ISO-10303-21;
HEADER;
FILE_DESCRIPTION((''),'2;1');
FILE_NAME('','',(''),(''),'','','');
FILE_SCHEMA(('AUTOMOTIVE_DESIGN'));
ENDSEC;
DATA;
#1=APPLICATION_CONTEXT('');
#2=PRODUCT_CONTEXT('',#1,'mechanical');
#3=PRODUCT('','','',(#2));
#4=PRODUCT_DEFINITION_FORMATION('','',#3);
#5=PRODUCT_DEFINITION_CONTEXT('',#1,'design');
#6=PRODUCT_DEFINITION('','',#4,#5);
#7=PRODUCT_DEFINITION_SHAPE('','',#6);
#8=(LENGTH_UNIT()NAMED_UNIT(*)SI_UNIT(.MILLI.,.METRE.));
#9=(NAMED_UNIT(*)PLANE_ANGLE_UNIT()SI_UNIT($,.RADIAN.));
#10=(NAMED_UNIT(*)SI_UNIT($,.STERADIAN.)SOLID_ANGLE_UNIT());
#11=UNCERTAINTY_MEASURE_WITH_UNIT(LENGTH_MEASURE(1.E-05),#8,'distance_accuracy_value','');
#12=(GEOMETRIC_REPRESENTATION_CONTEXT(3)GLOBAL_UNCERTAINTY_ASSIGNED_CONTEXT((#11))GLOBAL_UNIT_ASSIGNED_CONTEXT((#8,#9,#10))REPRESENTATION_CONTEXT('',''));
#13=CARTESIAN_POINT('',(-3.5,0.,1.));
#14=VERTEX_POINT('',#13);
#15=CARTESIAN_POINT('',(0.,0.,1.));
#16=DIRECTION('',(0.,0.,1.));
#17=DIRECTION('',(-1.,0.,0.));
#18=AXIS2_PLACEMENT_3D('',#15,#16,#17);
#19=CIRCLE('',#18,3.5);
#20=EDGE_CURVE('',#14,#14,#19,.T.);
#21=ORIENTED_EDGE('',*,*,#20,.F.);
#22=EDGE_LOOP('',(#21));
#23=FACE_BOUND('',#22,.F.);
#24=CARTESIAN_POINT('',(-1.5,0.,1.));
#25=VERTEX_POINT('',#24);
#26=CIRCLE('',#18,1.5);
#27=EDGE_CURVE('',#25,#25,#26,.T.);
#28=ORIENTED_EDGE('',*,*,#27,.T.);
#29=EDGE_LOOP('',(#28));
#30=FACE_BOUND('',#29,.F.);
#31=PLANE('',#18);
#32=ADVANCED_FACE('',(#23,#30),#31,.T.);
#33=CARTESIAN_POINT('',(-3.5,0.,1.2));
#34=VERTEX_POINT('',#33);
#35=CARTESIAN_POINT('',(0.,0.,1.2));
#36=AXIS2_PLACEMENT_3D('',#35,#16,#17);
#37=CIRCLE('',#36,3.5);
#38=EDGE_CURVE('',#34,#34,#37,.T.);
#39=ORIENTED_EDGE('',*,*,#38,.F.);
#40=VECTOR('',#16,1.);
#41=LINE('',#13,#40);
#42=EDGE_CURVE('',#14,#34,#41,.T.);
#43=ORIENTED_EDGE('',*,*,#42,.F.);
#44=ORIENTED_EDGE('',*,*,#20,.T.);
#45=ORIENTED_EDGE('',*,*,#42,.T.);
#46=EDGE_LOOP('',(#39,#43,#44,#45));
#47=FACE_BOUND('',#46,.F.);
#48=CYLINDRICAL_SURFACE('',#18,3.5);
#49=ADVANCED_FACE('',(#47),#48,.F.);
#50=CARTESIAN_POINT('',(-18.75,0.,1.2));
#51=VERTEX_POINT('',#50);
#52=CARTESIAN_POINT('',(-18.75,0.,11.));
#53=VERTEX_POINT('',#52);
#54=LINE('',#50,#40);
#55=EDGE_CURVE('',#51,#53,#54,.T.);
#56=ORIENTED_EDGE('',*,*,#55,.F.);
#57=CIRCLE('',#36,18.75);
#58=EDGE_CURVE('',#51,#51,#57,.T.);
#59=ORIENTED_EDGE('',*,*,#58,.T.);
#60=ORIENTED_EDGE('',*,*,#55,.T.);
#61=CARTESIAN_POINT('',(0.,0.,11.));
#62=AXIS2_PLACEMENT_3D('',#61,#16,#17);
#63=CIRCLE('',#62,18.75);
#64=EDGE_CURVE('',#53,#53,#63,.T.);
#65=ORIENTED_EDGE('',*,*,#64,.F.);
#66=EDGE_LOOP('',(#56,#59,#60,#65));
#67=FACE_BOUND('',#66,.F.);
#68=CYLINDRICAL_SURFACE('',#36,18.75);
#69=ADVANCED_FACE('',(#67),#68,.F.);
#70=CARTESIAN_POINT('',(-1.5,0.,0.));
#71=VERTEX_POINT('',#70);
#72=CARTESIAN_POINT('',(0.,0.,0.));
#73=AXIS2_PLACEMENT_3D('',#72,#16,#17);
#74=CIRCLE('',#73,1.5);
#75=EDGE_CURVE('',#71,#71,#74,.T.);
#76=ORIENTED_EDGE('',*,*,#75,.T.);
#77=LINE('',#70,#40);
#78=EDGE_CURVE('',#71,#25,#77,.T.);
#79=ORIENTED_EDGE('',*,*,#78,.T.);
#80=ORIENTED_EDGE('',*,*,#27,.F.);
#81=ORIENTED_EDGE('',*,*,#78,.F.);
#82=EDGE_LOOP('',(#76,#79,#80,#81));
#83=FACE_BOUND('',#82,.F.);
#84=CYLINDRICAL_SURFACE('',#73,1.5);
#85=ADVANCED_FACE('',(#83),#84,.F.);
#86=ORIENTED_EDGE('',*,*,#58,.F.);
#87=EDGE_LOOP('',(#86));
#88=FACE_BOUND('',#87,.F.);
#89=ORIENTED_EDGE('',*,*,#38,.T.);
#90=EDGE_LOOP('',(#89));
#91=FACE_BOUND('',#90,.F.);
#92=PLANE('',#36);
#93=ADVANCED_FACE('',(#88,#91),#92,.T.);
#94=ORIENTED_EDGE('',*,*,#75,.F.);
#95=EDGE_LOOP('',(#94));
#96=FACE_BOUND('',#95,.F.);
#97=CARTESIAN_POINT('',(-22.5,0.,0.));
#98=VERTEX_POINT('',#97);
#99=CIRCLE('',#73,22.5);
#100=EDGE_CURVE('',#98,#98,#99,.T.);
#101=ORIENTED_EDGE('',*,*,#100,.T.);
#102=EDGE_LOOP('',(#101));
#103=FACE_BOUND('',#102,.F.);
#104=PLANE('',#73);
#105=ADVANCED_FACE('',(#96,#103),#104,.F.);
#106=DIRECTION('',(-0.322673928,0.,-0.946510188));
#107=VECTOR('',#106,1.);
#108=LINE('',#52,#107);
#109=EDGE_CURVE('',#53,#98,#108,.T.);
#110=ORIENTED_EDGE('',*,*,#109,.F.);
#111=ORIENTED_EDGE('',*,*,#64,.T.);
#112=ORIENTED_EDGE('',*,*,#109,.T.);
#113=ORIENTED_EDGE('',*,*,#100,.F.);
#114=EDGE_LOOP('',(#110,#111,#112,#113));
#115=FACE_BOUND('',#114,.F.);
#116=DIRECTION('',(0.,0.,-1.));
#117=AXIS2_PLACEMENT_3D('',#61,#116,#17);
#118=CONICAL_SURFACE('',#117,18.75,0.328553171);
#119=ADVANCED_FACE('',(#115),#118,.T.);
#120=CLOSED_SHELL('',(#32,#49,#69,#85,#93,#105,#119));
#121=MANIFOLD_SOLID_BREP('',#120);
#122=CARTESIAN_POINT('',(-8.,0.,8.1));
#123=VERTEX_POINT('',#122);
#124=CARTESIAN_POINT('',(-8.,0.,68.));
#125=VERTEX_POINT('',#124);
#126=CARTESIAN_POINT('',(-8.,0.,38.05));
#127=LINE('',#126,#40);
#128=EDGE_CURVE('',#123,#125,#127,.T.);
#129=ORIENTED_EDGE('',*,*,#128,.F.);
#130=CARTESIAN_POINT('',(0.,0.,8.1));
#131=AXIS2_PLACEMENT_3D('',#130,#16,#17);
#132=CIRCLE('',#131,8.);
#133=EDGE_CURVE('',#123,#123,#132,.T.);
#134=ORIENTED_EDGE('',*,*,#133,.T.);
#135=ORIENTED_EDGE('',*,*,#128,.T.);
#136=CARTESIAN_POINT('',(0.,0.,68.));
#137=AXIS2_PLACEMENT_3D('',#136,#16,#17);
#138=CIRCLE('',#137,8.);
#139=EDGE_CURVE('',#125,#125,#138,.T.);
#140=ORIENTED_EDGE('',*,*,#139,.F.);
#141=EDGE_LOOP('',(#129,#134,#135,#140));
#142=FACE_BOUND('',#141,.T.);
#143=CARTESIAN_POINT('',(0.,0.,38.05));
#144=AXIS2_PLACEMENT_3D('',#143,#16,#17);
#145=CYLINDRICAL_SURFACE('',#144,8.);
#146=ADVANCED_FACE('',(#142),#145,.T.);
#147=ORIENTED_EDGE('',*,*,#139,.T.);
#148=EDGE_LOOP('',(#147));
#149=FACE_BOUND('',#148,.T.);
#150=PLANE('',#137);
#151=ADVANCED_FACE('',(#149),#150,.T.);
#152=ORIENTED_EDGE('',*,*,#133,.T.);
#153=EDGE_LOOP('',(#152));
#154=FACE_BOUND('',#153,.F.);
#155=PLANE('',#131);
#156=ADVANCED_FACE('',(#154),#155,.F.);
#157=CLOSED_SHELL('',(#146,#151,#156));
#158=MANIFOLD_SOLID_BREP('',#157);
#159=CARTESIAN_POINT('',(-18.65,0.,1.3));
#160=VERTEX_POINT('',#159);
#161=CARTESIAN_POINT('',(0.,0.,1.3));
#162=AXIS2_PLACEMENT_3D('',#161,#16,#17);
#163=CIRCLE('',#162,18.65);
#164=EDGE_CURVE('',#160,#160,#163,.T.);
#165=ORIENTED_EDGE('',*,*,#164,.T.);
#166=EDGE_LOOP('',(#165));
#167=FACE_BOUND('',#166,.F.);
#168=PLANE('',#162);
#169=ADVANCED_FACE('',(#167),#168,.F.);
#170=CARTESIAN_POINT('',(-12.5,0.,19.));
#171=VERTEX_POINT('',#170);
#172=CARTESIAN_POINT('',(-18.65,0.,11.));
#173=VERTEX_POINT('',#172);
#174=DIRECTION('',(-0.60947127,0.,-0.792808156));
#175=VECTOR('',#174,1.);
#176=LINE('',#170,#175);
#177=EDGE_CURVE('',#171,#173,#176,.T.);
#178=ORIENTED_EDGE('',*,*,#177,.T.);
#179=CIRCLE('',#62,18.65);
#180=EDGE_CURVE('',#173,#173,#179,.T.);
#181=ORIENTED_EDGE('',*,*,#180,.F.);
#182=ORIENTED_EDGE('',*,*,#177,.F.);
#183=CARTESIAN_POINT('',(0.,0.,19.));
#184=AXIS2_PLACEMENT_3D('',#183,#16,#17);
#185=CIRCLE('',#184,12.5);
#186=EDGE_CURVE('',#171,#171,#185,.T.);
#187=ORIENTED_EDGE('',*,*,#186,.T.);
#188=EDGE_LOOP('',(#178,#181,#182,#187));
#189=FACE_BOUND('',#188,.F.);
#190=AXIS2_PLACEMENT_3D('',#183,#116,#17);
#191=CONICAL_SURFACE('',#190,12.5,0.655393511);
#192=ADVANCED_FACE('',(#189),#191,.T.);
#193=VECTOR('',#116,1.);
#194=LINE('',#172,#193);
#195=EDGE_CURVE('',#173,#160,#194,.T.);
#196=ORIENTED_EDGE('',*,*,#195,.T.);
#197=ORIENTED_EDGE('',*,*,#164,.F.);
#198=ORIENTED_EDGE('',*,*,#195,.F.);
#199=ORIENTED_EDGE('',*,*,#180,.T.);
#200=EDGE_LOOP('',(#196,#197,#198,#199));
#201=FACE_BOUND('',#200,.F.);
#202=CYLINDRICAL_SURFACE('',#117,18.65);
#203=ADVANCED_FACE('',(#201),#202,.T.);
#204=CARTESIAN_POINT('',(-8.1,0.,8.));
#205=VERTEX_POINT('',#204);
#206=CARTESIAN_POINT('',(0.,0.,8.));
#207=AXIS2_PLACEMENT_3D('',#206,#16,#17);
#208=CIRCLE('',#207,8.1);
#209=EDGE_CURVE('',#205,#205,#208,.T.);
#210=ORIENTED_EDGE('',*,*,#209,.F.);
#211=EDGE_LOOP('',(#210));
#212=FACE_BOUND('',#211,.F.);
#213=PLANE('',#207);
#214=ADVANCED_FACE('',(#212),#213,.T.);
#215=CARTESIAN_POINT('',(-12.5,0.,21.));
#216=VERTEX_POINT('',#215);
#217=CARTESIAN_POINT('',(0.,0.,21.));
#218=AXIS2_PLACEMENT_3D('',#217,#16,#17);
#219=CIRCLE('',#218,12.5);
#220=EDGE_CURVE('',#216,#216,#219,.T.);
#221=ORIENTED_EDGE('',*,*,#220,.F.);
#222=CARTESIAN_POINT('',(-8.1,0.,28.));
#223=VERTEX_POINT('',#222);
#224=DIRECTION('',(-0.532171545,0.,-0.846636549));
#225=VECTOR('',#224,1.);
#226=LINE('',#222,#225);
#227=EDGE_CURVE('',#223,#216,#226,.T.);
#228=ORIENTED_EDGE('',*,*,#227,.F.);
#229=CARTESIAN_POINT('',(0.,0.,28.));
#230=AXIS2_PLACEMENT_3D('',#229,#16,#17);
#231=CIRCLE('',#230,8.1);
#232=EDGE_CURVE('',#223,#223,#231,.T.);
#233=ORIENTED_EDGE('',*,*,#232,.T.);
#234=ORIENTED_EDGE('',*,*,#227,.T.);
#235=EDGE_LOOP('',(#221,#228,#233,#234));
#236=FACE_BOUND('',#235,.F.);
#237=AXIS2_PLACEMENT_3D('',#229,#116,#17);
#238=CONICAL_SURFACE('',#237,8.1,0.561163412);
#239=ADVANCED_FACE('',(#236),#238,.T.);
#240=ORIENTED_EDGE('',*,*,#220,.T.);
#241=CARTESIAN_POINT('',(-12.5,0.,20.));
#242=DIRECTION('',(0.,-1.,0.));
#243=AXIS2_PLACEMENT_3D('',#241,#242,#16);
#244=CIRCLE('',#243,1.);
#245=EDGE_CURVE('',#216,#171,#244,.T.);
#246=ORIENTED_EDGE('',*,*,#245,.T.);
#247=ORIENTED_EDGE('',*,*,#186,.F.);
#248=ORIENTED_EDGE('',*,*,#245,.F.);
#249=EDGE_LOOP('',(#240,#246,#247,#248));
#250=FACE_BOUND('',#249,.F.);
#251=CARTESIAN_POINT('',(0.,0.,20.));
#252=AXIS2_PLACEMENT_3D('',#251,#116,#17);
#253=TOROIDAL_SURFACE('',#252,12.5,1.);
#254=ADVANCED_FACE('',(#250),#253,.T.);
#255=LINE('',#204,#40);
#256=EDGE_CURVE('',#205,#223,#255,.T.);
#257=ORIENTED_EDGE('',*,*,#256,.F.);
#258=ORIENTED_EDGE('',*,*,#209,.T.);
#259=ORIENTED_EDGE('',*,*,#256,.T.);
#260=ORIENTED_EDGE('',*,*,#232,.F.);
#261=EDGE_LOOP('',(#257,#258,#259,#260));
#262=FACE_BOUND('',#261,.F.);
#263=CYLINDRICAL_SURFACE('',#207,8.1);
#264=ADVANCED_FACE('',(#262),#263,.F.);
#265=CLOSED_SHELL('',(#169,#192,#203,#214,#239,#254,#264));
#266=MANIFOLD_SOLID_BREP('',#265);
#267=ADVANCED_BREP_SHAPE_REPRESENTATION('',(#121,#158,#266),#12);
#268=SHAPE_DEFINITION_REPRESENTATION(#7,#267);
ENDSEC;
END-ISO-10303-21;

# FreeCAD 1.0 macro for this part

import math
import FreeCAD as App
import Part
import Sketcher
from FreeCAD import Vector
Q = App.Units.Quantity


def add_polygon(sketch, points):
    """Adds a closed chain of lines whose ends are joined by coincident constraints."""
    first, n = sketch.GeometryCount, len(points)
    for a, b in zip(points, points[1:] + points[:1]):
        sketch.addGeometry(Part.LineSegment(App.Vector(*a, 0), App.Vector(*b, 0)), False)
    for i in range(n):
        sketch.addConstraint(Sketcher.Constraint("Coincident", first + i, 2, first + (i + 1) % n, 1))

doc = App.newDocument("Part")
body = doc.addObject("PartDesign::Body", "Body")
body.AllowCompound = True

# Sketch on XZ plane
sketch1 = doc.addObject("Sketcher::SketchObject", "Sketch")
body.addObject(sketch1)
sketch1.AttachmentSupport = (doc.XZ_Plane, [""])
sketch1.MapMode = "FlatFace"
add_polygon(sketch1, [(-22.5, 0), (-1.5, 0), (-1.5, 1), (-3.5, 1), (-3.5, 1.2), (-18.75, 1.2), (-18.75, 11)])  # lines 0-6
sketch1.addGeometry(Part.LineSegment(Vector(-18.65, 11, 0), Vector(-18.65, 1.3, 0)), False)  # 7
sketch1.addGeometry(Part.LineSegment(Vector(-18.65, 1.3, 0), Vector(0, 1.3, 0)), False)  # 8
sketch1.addGeometry(Part.LineSegment(Vector(0, 1.3, 0), Vector(0, 8, 0)), False)  # 9
sketch1.addGeometry(Part.LineSegment(Vector(0, 8, 0), Vector(-8.1, 8, 0)), False)  # 10
sketch1.addGeometry(Part.LineSegment(Vector(-8.1, 8, 0), Vector(-8.1, 28, 0)), False)  # 11
sketch1.addGeometry(Part.LineSegment(Vector(-8.1, 28, 0), Vector(-12.5, 21, 0)), False)  # 12
sketch1.addGeometry(Part.ArcOfCircle(Part.Circle(Vector(-12.5, 20, 0), Vector(0, 0, 1), 1), math.radians(90), math.radians(270)), False)  # 13
sketch1.addGeometry(Part.LineSegment(Vector(-12.5, 19, 0), Vector(-18.65, 11, 0)), False)  # 14
add_polygon(sketch1, [(-8, 68), (-8, 8.1), (0, 8.1), (0, 68)])  # lines 15-18
sketch1.addConstraint(Sketcher.Constraint("Coincident", 7, 2, 8, 1))
sketch1.addConstraint(Sketcher.Constraint("Coincident", 8, 2, 9, 1))
sketch1.addConstraint(Sketcher.Constraint("Coincident", 9, 2, 10, 1))
sketch1.addConstraint(Sketcher.Constraint("Coincident", 10, 2, 11, 1))
sketch1.addConstraint(Sketcher.Constraint("Coincident", 11, 2, 12, 1))
sketch1.addConstraint(Sketcher.Constraint("Coincident", 12, 2, 13, 1))
sketch1.addConstraint(Sketcher.Constraint("Coincident", 13, 2, 14, 1))
sketch1.addConstraint(Sketcher.Constraint("Coincident", 14, 2, 7, 1))
sketch1.addConstraint(Sketcher.Constraint("Horizontal", 0))
sketch1.addConstraint(Sketcher.Constraint("Vertical", 1))
sketch1.addConstraint(Sketcher.Constraint("Horizontal", 2))
sketch1.addConstraint(Sketcher.Constraint("Vertical", 3))
sketch1.addConstraint(Sketcher.Constraint("Horizontal", 4))
sketch1.addConstraint(Sketcher.Constraint("Vertical", 5))
sketch1.addConstraint(Sketcher.Constraint("Vertical", 7))
sketch1.addConstraint(Sketcher.Constraint("Horizontal", 8))
sketch1.addConstraint(Sketcher.Constraint("Vertical", 9))
sketch1.addConstraint(Sketcher.Constraint("Horizontal", 10))
sketch1.addConstraint(Sketcher.Constraint("Vertical", 11))
sketch1.addConstraint(Sketcher.Constraint("Vertical", 15))
sketch1.addConstraint(Sketcher.Constraint("Horizontal", 16))
sketch1.addConstraint(Sketcher.Constraint("Vertical", 17))
sketch1.addConstraint(Sketcher.Constraint("Horizontal", 18))
sketch1.addConstraint(Sketcher.Constraint("PointOnObject", 0, 2, -1))
sketch1.addConstraint(Sketcher.Constraint("PointOnObject", 8, 2, -2))
sketch1.addConstraint(Sketcher.Constraint("PointOnObject", 16, 2, -2))
sketch1.addConstraint(Sketcher.Constraint("Horizontal", 5, 2, 14, 2))
sketch1.addConstraint(Sketcher.Constraint("Vertical", 13, 3, 12, 2))
sketch1.addConstraint(Sketcher.Constraint("Vertical", 12, 2, 13, 2))
sketch1.addConstraint(Sketcher.Constraint("Radius", 13, Q("1 mm")))
sketch1.addConstraint(Sketcher.Constraint("DistanceX", 0, 1, 0, 2, Q("21 mm")))
sketch1.addConstraint(Sketcher.Constraint("DistanceX", 2, 2, 2, 1, Q("2 mm")))
sketch1.addConstraint(Sketcher.Constraint("DistanceX", 16, 1, 16, 2, Q("8 mm")))
sketch1.addConstraint(Sketcher.Constraint("DistanceY", 1, 1, 1, 2, Q("1 mm")))
sketch1.addConstraint(Sketcher.Constraint("DistanceY", 11, 1, 11, 2, Q("20 mm")))
sketch1.addConstraint(Sketcher.Constraint("DistanceX", 10, 2, 10, 1, Q("8.1 mm")))
sketch1.addConstraint(Sketcher.Constraint("DistanceY", 3, 1, 3, 2, Q("0.2 mm")))
sketch1.addConstraint(Sketcher.Constraint("DistanceY", 5, 1, 5, 2, Q("9.8 mm")))
sketch1.addConstraint(Sketcher.Constraint("DistanceY", 7, 2, 7, 1, Q("9.7 mm")))
sketch1.addConstraint(Sketcher.Constraint("DistanceY", 9, 1, 9, 2, Q("6.7 mm")))
sketch1.addConstraint(Sketcher.Constraint("DistanceY", 15, 2, 15, 1, Q("59.9 mm")))
sketch1.addConstraint(Sketcher.Constraint("DistanceY", -1, 1, 13, 3, Q("20 mm")))
sketch1.addConstraint(Sketcher.Constraint("DistanceY", -1, 1, 17, 2, Q("68 mm")))
sketch1.addConstraint(Sketcher.Constraint("DistanceX", 13, 3, 0, 2, Q("11 mm")))
sketch1.addConstraint(Sketcher.Constraint("DistanceX", 4, 2, 4, 1, Q("15.25 mm")))
sketch1.addConstraint(Sketcher.Constraint("DistanceX", 8, 1, 8, 2, Q("18.65 mm")))
sketch1.addConstraint(Sketcher.Constraint("DistanceX", 13, 3, -1, 1, Q("12.5 mm")))
revolution = doc.addObject("PartDesign::Revolution", "Revolution")
body.addObject(revolution)
revolution.Profile = sketch1
revolution.ReferenceAxis = (sketch1, ["V_Axis"])
revolution.Angle = 360

doc.recompute()
